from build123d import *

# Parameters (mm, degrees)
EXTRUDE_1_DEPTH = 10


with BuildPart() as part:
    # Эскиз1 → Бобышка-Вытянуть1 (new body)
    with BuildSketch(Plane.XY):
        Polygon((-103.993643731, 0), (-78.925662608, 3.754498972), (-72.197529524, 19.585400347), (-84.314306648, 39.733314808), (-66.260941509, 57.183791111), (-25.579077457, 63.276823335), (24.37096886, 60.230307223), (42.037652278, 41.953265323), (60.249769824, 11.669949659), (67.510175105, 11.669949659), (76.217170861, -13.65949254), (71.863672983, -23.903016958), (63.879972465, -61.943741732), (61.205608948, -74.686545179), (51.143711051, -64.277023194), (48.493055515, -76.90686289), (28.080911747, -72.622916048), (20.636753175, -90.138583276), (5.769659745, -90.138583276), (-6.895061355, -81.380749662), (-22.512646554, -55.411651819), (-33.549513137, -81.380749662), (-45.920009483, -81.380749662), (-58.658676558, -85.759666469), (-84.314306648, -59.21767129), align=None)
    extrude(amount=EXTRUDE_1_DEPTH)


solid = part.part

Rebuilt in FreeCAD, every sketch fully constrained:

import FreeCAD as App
import Part
import Sketcher


def add_polygon(sketch, points):
    """Adds a closed chain of lines whose ends are joined by coincident constraints."""
    first, n = sketch.GeometryCount, len(points)
    for a, b in zip(points, points[1:] + points[:1]):
        sketch.addGeometry(Part.LineSegment(App.Vector(*a, 0), App.Vector(*b, 0)), False)
    for i in range(n):
        sketch.addConstraint(Sketcher.Constraint("Coincident", first + i, 2, first + (i + 1) % n, 1))

doc = App.newDocument("Part")
body = doc.addObject("PartDesign::Body", "Body")

# Sketch on XY plane
sketch1 = body.newObject("Sketcher::SketchObject", "Sketch")
sketch1.AttachmentSupport = (doc.getObject("XY_Plane"), [""])
sketch1.MapMode = "FlatFace"
add_polygon(sketch1, [(-79, 4), (-104, 0), (-84, -59), (-59, -86), (-46, -81), (-34, -81), (-23, -55), (-7, -81), (6, -90), (21, -90), (28, -73), (48, -77), (51, -64), (61, -75), (64, -62), (72, -24), (76, -14), (68, 12), (60, 12), (42, 42), (24, 60), (-26, 63), (-66, 57), (-84, 40), (-72, 20)])  # lines 0-24
sketch1.addConstraint(Sketcher.Constraint("Horizontal", 4))
sketch1.addConstraint(Sketcher.Constraint("Horizontal", 8))
sketch1.addConstraint(Sketcher.Constraint("Horizontal", 17))
sketch1.addConstraint(Sketcher.Constraint("PointOnObject", 0, 2, -1))
sketch1.addConstraint(Sketcher.Constraint("Parallel", 5, 9))
sketch1.addConstraint(Sketcher.Constraint("Perpendicular", 10, 11))
sketch1.addConstraint(Sketcher.Constraint("Parallel", 2, 12))
sketch1.addConstraint(Sketcher.Constraint("Parallel", 11, 13))
sketch1.addConstraint(Sketcher.Constraint("Parallel", 13, 14))
sketch1.addConstraint(Sketcher.Constraint("Parallel", 9, 15))
sketch1.addConstraint(Sketcher.Constraint("Perpendicular", 3, 16))
sketch1.addConstraint(Sketcher.Constraint("Parallel", 6, 18))
sketch1.addConstraint(Sketcher.Constraint("Parallel", 12, 19))
sketch1.addConstraint(Sketcher.Constraint("Parallel", 0, 21))
sketch1.addConstraint(Sketcher.Constraint("Perpendicular", 19, 22))
sketch1.addConstraint(Sketcher.Constraint("Parallel", 18, 23))
sketch1.addConstraint(Sketcher.Constraint("Parallel", 15, 24))
sketch1.addConstraint(Sketcher.Constraint("Horizontal", 4, 2, 6, 2))
sketch1.addConstraint(Sketcher.Constraint("Vertical", 1, 2, 22, 2))
sketch1.addConstraint(Sketcher.Constraint("DistanceY", -1, 1, 23, 2, 19.5854))
sketch1.addConstraint(Sketcher.Constraint("DistanceY", -1, 1, 24, 2, 3.754499))
sketch1.addConstraint(Sketcher.Constraint("DistanceX", 5, 2, 8, 2, 43.1494))
sketch1.addConstraint(Sketcher.Constraint("DistanceX", 9, 2, 11, 2, 23.062799))
sketch1.addConstraint(Sketcher.Constraint("DistanceX", 13, 2, 14, 2, 7.983701))
sketch1.addConstraint(Sketcher.Constraint("DistanceY", 9, 2, 14, 2, 48.719899))
sketch1.addConstraint(Sketcher.Constraint("DistanceX", 13, 2, 15, 2, 12.337198))
sketch1.addConstraint(Sketcher.Constraint("DistanceX", 17, 2, 15, 2, 15.967401))
sketch1.addConstraint(Sketcher.Constraint("DistanceX", 19, 2, 17, 2, 35.878801))
sketch1.addConstraint(Sketcher.Constraint("DistanceY", 15, 2, 19, 2, 73.8898))
sketch1.addConstraint(Sketcher.Constraint("Distance", 5, 28.217131))
sketch1.addConstraint(Sketcher.Constraint("Distance", 10, 20.856841))
sketch1.addConstraint(Sketcher.Constraint("Distance", 21, 41.135618))
sketch1.addConstraint(Sketcher.Constraint("DistanceX", 4, 1, 4, 2, 12.370496))
sketch1.addConstraint(Sketcher.Constraint("DistanceX", 8, 1, 8, 2, 14.867093))
sketch1.addConstraint(Sketcher.Constraint("DistanceX", 17, 2, 17, 1, 7.260405))
sketch1.addConstraint(Sketcher.Constraint("DistanceY", 1, 2, -1, 1, 59.217671))
sketch1.addConstraint(Sketcher.Constraint("DistanceX", 3, 2, -1, 1, 45.920009))
sketch1.addConstraint(Sketcher.Constraint("DistanceY", 3, 2, -1, 1, 81.38075))
sketch1.addConstraint(Sketcher.Constraint("DistanceY", 5, 2, -1, 1, 55.411652))
sketch1.addConstraint(Sketcher.Constraint("DistanceX", 6, 2, -1, 1, 6.895061))
sketch1.addConstraint(Sketcher.Constraint("DistanceX", -1, 1, 9, 2, 28.080912))
sketch1.addConstraint(Sketcher.Constraint("DistanceX", -1, 1, 12, 2, 61.205609))
sketch1.addConstraint(Sketcher.Constraint("DistanceY", 13, 2, -1, 1, 61.943742))
sketch1.addConstraint(Sketcher.Constraint("DistanceX", -1, 1, 15, 2, 76.217171))
sketch1.addConstraint(Sketcher.Constraint("DistanceY", -1, 1, 16, 2, 11.66995))
sketch1.addConstraint(Sketcher.Constraint("DistanceX", 21, 2, -1, 1, 66.260942))
sketch1.addConstraint(Sketcher.Constraint("DistanceY", -1, 1, 21, 2, 57.183791))
sketch1.addConstraint(Sketcher.Constraint("DistanceX", 23, 2, -1, 1, 72.19753))
sketch1.addConstraint(Sketcher.Constraint("DistanceX", 1, 2, 2, 2, 25.65563))
sketch1.addConstraint(Sketcher.Constraint("DistanceX", 0, 2, 4, 2, 70.444131))
pad1 = body.newObject("PartDesign::Pad", "Pad")
pad1.Profile = sketch1
pad1.Length = 10

doc.recompute()
